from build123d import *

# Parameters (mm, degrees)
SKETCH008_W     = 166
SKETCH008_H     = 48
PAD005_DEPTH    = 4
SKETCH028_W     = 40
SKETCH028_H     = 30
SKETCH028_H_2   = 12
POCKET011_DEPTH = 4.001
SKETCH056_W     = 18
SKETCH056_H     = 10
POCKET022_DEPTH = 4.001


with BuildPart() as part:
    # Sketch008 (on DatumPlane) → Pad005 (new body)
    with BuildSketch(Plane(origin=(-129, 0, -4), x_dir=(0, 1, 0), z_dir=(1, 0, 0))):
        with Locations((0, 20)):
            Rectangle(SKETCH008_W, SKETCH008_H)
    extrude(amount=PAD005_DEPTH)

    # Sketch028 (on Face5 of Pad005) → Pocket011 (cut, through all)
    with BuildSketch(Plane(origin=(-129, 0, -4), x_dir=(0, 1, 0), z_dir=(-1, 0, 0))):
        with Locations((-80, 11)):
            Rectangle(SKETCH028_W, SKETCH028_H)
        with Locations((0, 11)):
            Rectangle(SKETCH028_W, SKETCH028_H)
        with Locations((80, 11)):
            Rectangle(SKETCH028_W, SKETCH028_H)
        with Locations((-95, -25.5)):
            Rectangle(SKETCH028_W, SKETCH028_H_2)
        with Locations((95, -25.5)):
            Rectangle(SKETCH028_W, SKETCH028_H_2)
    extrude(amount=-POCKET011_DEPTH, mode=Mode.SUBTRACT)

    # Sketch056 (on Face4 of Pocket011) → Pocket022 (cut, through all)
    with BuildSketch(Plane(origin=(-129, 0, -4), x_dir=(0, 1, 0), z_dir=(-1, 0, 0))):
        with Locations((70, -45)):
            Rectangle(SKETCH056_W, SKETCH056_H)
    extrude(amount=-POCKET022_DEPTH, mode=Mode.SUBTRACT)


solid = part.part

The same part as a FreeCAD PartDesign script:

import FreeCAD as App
import Part
import Sketcher
from FreeCAD import Vector


def add_polygon(sketch, points):
    """Adds a closed chain of lines whose ends are joined by coincident constraints."""
    first, n = sketch.GeometryCount, len(points)
    for a, b in zip(points, points[1:] + points[:1]):
        sketch.addGeometry(Part.LineSegment(App.Vector(*a, 0), App.Vector(*b, 0)), False)
    for i in range(n):
        sketch.addConstraint(Sketcher.Constraint("Coincident", first + i, 2, first + (i + 1) % n, 1))

doc = App.newDocument("Part")
body = doc.addObject("PartDesign::Body", "Body")

# Sketch on YZ plane
sketch1 = body.newObject("Sketcher::SketchObject", "Sketch")
sketch1.AttachmentSupport = (doc.getObject("YZ_Plane"), [""])
sketch1.MapMode = "FlatFace"
sketch1.AttachmentOffset = App.Placement(Vector(0, 0, -129), App.Rotation())
add_polygon(sketch1, [(-83, 40), (-83, -8), (83, -8), (83, 40)])  # lines 0-3
sketch1.addConstraint(Sketcher.Constraint("Vertical", 0))
sketch1.addConstraint(Sketcher.Constraint("Horizontal", 1))
sketch1.addConstraint(Sketcher.Constraint("Vertical", 2))
sketch1.addConstraint(Sketcher.Constraint("Horizontal", 3))
sketch1.addConstraint(Sketcher.Constraint("DistanceX", 1, 1, 1, 2, 166.0))
sketch1.addConstraint(Sketcher.Constraint("DistanceY", 0, 2, 0, 1, 48.0))
sketch1.addConstraint(Sketcher.Constraint("DistanceX", 0, 2, -1, 1, 83.0))
sketch1.addConstraint(Sketcher.Constraint("DistanceY", 0, 2, -1, 1, 8.0))
pad1 = body.newObject("PartDesign::Pad", "Pad")
pad1.Profile = sketch1
pad1.Length = 4

# Sketch on YZ plane
sketch2 = body.newObject("Sketcher::SketchObject", "Sketch001")
sketch2.AttachmentSupport = (doc.getObject("YZ_Plane"), [""])
sketch2.MapMode = "FlatFace"
sketch2.AttachmentOffset = App.Placement(Vector(0, 0, -129), App.Rotation())
add_polygon(sketch2, [(-100, -30), (-100, 0), (-60, 0), (-60, -30)])  # lines 0-3
add_polygon(sketch2, [(-20, -30), (-20, 0), (20, 0), (20, -30)])  # lines 4-7
add_polygon(sketch2, [(60, -30), (60, 0), (100, 0), (100, -30)])  # lines 8-11
add_polygon(sketch2, [(-115, 16), (-115, 28), (-75, 28), (-75, 16)])  # lines 12-15
add_polygon(sketch2, [(75, 16), (75, 28), (115, 28), (115, 16)])  # lines 16-19
sketch2.addConstraint(Sketcher.Constraint("Vertical", 0))
sketch2.addConstraint(Sketcher.Constraint("Horizontal", 1))
sketch2.addConstraint(Sketcher.Constraint("Vertical", 2))
sketch2.addConstraint(Sketcher.Constraint("Horizontal", 3))
sketch2.addConstraint(Sketcher.Constraint("Vertical", 4))
sketch2.addConstraint(Sketcher.Constraint("Horizontal", 5))
sketch2.addConstraint(Sketcher.Constraint("Vertical", 6))
sketch2.addConstraint(Sketcher.Constraint("Horizontal", 7))
sketch2.addConstraint(Sketcher.Constraint("Vertical", 8))
sketch2.addConstraint(Sketcher.Constraint("Horizontal", 9))
sketch2.addConstraint(Sketcher.Constraint("Vertical", 10))
sketch2.addConstraint(Sketcher.Constraint("Horizontal", 11))
sketch2.addConstraint(Sketcher.Constraint("Vertical", 12))
sketch2.addConstraint(Sketcher.Constraint("Horizontal", 13))
sketch2.addConstraint(Sketcher.Constraint("Vertical", 14))
sketch2.addConstraint(Sketcher.Constraint("Horizontal", 15))
sketch2.addConstraint(Sketcher.Constraint("Vertical", 16))
sketch2.addConstraint(Sketcher.Constraint("Horizontal", 17))
sketch2.addConstraint(Sketcher.Constraint("Vertical", 18))
sketch2.addConstraint(Sketcher.Constraint("Horizontal", 19))
sketch2.addConstraint(Sketcher.Constraint("Symmetric", 4, 2, 5, 2, -1, 1))
sketch2.addConstraint(Sketcher.Constraint("Symmetric", 1, 2, 8, 2, -1, 1))
sketch2.addConstraint(Sketcher.Constraint("Symmetric", 0, 2, 9, 2, -2))
sketch2.addConstraint(Sketcher.Constraint("Symmetric", 13, 2, 16, 2, -2))
sketch2.addConstraint(Sketcher.Constraint("Symmetric", 15, 2, 18, 2, -2))
sketch2.addConstraint(Sketcher.Constraint("Horizontal", 3, 2, 6, 2))
sketch2.addConstraint(Sketcher.Constraint("Horizontal", 7, 2, 10, 2))
sketch2.addConstraint(Sketcher.Constraint("Equal", 3, 5))
sketch2.addConstraint(Sketcher.Constraint("Equal", 11, 13))
sketch2.addConstraint(Sketcher.Constraint("DistanceX", 1, 1, 1, 2, 40.0))
sketch2.addConstraint(Sketcher.Constraint("DistanceY", 0, 1, 0, 2, 30.0))
sketch2.addConstraint(Sketcher.Constraint("DistanceY", 12, 1, 12, 2, 12.0))
sketch2.addConstraint(Sketcher.Constraint("DistanceX", 0, 2, -1, 1, 100.0))
sketch2.addConstraint(Sketcher.Constraint("DistanceX", 12, 2, -1, 1, 115.0))
sketch2.addConstraint(Sketcher.Constraint("DistanceY", -1, 1, 12, 2, 27.5))
pocket1 = body.newObject("PartDesign::Pocket", "Pocket")
pocket1.Profile = sketch2
pocket1.Type = "ThroughAll"
pocket1.Reversed = True

# Sketch on YZ plane
sketch3 = body.newObject("Sketcher::SketchObject", "Sketch002")
sketch3.AttachmentSupport = (doc.getObject("YZ_Plane"), [""])
sketch3.MapMode = "FlatFace"
sketch3.AttachmentOffset = App.Placement(Vector(0, 0, -129), App.Rotation())
add_polygon(sketch3, [(61, 36), (61, 46), (79, 46), (79, 36)])  # lines 0-3
sketch3.addConstraint(Sketcher.Constraint("Vertical", 0))
sketch3.addConstraint(Sketcher.Constraint("Horizontal", 1))
sketch3.addConstraint(Sketcher.Constraint("Vertical", 2))
sketch3.addConstraint(Sketcher.Constraint("Horizontal", 3))
sketch3.addConstraint(Sketcher.Constraint("DistanceX", 1, 1, 1, 2, 18.0))
sketch3.addConstraint(Sketcher.Constraint("DistanceY", 0, 1, 0, 2, 10.0))
sketch3.addConstraint(Sketcher.Constraint("DistanceX", -1, 1, 0, 2, 61.0))
sketch3.addConstraint(Sketcher.Constraint("DistanceY", -1, 1, 0, 2, 46.0))
pocket2 = body.newObject("PartDesign::Pocket", "Pocket001")
pocket2.Profile = sketch3
pocket2.Type = "ThroughAll"
pocket2.Reversed = True

doc.recompute()
